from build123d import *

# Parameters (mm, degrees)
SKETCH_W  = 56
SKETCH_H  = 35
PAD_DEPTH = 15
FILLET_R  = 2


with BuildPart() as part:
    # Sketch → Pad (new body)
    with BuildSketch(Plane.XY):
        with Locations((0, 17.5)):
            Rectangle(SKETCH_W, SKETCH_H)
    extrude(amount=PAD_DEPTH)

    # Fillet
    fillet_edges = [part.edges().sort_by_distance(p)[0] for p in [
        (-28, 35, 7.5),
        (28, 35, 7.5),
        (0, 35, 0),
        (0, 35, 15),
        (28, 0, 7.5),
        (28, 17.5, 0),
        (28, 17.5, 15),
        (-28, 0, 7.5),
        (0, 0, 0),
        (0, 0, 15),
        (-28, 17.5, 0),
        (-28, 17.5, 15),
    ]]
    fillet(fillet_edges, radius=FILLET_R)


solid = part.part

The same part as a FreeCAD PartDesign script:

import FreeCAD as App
import Part
import Sketcher
from FreeCAD import Vector


def add_polygon(sketch, points):
    """Adds a closed chain of lines whose ends are joined by coincident constraints."""
    first, n = sketch.GeometryCount, len(points)
    for a, b in zip(points, points[1:] + points[:1]):
        sketch.addGeometry(Part.LineSegment(App.Vector(*a, 0), App.Vector(*b, 0)), False)
    for i in range(n):
        sketch.addConstraint(Sketcher.Constraint("Coincident", first + i, 2, first + (i + 1) % n, 1))

doc = App.newDocument("Part")
body = doc.addObject("PartDesign::Body", "Body")

# Sketch on XY plane
sketch1 = doc.addObject("Sketcher::SketchObject", "Sketch")
body.addObject(sketch1)
sketch1.AttachmentSupport = (doc.XY_Plane, [""])
sketch1.MapMode = "FlatFace"
add_polygon(sketch1, [(-28, 35), (-28, 0), (28, 0), (28, 35)])  # lines 0-3
sketch1.addConstraint(Sketcher.Constraint("Vertical", 0))
sketch1.addConstraint(Sketcher.Constraint("Horizontal", 1))
sketch1.addConstraint(Sketcher.Constraint("Vertical", 2))
sketch1.addConstraint(Sketcher.Constraint("Horizontal", 3))
sketch1.addConstraint(Sketcher.Constraint("Symmetric", 0, 2, 1, 2, -1, 1))
sketch1.addConstraint(Sketcher.Constraint("DistanceX", 1, 1, 1, 2, 56.0))
sketch1.addConstraint(Sketcher.Constraint("DistanceY", 0, 2, 0, 1, 35.0))
pad1 = doc.addObject("PartDesign::Pad", "Pad")
body.addObject(pad1)
pad1.Profile = sketch1
pad1.Length = 15
doc.recompute()

fillet = doc.addObject("PartDesign::Fillet", "Fillet")
body.addObject(fillet)
fillet.Base = (pad1, ["Edge1"])
fillet.UseAllEdges = True
fillet.Radius = 2

doc.recompute()
